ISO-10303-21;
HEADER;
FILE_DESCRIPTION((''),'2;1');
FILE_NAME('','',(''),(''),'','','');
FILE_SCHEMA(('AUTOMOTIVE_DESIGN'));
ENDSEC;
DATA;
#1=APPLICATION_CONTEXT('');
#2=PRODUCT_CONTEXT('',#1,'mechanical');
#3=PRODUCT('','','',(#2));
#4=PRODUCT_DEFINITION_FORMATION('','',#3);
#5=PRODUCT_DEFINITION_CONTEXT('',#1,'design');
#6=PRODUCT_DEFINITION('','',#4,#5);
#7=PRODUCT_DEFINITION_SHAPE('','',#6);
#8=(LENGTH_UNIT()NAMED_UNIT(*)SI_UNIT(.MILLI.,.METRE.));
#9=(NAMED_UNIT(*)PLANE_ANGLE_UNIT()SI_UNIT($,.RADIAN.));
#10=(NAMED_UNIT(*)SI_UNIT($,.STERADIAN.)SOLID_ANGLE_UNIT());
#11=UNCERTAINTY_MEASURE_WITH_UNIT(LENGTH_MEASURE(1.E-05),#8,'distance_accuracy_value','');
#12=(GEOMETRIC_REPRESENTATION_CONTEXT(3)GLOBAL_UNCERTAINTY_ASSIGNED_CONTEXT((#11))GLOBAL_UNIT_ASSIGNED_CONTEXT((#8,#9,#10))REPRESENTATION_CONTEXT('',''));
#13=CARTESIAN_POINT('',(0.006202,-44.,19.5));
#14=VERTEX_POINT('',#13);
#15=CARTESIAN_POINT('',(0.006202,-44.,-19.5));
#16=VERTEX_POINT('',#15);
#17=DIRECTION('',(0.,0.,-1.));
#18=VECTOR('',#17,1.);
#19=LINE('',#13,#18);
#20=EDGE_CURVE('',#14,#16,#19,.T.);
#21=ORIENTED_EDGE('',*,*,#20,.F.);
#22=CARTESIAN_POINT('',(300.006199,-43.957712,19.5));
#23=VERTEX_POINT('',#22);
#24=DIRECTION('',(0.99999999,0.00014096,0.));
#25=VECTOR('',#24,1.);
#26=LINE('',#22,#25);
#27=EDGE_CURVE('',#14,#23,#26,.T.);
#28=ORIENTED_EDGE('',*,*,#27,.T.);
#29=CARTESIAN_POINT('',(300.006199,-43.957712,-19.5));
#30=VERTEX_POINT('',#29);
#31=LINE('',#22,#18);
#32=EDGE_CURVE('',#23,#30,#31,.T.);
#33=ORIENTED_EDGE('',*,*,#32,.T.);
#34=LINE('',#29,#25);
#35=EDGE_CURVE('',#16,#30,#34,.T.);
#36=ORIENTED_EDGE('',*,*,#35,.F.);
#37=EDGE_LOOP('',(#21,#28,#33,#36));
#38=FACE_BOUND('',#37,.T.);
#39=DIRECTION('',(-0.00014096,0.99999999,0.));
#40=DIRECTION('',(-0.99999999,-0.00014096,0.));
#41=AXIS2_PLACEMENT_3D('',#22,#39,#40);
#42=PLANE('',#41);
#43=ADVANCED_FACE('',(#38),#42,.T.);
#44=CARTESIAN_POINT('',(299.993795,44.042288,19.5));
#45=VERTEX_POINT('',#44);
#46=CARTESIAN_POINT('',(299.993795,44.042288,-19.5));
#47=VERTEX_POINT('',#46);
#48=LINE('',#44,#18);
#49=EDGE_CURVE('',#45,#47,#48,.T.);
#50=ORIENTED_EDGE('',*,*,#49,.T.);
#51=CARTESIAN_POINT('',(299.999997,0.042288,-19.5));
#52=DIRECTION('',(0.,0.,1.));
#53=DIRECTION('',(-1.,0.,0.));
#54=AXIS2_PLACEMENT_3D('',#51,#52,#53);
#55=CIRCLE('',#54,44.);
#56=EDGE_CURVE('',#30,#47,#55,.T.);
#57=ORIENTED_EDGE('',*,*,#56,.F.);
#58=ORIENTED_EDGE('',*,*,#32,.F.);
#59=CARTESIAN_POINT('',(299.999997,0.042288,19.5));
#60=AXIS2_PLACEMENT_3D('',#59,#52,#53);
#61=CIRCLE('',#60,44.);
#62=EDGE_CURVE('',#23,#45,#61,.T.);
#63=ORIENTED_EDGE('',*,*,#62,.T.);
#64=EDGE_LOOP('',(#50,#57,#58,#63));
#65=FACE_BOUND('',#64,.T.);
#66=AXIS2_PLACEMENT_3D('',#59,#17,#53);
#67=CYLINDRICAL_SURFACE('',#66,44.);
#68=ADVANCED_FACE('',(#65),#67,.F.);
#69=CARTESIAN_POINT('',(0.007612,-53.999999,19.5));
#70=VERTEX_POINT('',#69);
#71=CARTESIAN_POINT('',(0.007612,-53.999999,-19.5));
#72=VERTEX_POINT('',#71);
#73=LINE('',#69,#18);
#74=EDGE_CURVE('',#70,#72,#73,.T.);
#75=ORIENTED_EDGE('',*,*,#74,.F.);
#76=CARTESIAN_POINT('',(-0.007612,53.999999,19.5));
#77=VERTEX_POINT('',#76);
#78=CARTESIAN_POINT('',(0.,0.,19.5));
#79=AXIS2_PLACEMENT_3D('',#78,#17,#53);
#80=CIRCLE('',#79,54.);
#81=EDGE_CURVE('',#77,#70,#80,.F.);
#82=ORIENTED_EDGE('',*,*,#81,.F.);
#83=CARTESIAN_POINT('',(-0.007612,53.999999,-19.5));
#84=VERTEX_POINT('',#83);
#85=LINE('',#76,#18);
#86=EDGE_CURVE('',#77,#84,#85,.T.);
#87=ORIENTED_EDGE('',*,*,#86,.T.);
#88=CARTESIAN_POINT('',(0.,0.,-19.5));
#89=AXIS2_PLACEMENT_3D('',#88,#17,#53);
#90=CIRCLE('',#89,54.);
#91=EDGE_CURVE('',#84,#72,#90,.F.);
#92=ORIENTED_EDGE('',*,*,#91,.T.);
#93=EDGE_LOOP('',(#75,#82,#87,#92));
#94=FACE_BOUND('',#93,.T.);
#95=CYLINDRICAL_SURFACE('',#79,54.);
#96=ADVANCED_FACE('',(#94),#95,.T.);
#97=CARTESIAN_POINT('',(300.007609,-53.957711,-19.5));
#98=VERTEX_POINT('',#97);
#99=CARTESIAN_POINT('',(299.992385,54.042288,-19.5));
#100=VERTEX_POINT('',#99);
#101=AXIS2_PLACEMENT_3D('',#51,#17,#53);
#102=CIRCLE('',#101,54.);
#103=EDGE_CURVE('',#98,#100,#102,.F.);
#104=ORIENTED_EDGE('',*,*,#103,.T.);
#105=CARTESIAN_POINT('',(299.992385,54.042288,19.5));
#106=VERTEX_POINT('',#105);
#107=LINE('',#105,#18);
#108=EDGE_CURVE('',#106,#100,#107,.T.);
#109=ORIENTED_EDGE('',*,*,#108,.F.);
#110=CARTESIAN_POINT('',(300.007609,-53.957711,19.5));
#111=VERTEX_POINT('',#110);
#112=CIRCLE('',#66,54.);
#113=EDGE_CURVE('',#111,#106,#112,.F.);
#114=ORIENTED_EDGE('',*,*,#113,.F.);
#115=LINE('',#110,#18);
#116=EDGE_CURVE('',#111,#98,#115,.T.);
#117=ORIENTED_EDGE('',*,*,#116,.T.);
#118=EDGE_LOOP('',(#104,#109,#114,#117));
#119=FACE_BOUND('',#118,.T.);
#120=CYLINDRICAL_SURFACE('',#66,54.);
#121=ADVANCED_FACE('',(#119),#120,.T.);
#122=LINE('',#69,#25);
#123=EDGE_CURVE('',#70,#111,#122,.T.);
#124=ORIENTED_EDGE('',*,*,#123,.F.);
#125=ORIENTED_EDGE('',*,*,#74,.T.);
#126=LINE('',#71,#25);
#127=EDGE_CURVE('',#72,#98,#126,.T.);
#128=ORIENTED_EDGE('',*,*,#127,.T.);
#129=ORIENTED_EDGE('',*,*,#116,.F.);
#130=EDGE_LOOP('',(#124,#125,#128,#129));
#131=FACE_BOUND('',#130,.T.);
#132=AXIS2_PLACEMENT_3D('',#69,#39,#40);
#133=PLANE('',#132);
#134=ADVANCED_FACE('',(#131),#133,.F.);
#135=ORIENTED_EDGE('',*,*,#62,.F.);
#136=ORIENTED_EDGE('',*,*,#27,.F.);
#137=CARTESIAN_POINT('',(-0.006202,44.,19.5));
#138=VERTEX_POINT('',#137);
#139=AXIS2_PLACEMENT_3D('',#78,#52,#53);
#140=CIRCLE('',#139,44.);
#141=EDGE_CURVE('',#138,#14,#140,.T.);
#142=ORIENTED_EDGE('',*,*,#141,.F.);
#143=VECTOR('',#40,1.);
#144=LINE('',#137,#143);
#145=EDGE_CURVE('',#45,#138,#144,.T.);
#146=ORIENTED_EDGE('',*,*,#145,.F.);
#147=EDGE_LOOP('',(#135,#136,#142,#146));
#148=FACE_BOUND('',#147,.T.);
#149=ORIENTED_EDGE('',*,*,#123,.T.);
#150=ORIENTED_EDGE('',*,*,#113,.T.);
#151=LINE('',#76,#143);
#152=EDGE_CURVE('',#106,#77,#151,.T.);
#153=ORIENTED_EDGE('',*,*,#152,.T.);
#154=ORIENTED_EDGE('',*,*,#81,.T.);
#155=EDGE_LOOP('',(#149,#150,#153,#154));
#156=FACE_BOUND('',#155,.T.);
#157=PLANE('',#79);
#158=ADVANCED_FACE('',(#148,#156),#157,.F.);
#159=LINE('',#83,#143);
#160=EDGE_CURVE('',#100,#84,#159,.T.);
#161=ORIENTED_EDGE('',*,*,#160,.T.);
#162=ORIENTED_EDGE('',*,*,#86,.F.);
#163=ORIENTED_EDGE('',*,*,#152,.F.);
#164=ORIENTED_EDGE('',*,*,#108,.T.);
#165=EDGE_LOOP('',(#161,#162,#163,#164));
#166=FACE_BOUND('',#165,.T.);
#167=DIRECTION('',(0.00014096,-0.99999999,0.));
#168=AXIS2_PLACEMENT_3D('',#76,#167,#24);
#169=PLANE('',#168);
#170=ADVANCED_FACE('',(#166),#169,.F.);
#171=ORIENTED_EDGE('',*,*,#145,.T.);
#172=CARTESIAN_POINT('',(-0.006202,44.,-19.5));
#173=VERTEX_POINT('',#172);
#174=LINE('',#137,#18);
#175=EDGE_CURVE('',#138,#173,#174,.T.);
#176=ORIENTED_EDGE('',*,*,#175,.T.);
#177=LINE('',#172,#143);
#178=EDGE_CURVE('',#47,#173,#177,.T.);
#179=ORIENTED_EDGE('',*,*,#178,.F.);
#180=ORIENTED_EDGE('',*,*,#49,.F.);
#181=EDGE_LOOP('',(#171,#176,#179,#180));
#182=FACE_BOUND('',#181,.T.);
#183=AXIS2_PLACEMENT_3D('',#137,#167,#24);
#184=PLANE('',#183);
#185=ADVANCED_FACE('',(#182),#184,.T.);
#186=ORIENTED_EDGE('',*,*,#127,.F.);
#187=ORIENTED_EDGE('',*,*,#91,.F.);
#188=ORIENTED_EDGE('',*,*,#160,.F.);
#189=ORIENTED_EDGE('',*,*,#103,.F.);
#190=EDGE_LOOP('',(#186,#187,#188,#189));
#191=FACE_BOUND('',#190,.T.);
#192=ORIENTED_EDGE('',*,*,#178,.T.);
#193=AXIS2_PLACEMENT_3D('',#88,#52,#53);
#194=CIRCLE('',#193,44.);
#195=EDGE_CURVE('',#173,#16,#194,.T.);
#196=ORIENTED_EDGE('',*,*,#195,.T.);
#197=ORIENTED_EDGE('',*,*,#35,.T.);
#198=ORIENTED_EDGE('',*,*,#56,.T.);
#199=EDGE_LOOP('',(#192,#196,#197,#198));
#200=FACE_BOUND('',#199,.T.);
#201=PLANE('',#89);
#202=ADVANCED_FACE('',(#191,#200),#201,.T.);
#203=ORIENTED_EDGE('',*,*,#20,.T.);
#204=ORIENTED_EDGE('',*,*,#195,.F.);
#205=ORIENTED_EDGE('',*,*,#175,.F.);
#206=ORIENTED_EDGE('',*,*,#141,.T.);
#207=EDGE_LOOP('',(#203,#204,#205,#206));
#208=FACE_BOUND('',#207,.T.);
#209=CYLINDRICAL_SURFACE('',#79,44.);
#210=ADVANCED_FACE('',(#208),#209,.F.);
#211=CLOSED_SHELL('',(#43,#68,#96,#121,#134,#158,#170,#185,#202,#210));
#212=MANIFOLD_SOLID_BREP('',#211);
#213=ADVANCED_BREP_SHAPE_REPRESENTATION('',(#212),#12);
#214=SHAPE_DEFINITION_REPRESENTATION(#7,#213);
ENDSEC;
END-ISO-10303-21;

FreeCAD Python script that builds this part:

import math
import FreeCAD as App
import Part
import Sketcher
from FreeCAD import Vector

doc = App.newDocument("Part")
params = doc.addObject("Spreadsheet::Sheet", "Params")
for row, (alias, value) in enumerate([
    ("sketch1_radius", "54 mm"),
    ("sketch1_radius2", "44 mm"),
    ("sketch1_length", "300 mm"),
    ("pad1_length", "39 mm"),
], start=1):
    params.set(f"A{row}", alias)
    params.set(f"B{row}", "=" + value)
    params.setAlias(f"B{row}", alias)

body = doc.addObject("PartDesign::Body", "Body")

sketch1 = doc.addObject("Sketcher::SketchObject", "Sketch")
body.addObject(sketch1)
sketch1.AttachmentSupport = (doc.XY_Plane, [""])
sketch1.MapMode = "FlatFace"
sketch1.addGeometry([
    Part.LineSegment(Vector(0, -54, 0), Vector(300, -54, 0)),
    Part.ArcOfCircle(Part.Circle(Vector(300, 0, 0), Vector(0, 0, 1), 54), math.radians(-90), math.radians(90)),
    Part.LineSegment(Vector(300, 54, 0), Vector(0, 54, 0)),
    Part.ArcOfCircle(Part.Circle(Vector(0, 0, 0), Vector(0, 0, 1), 54), math.radians(90), math.radians(270)),
    Part.LineSegment(Vector(300, -44, 0), Vector(0, -44, 0)),
    Part.ArcOfCircle(Part.Circle(Vector(0, 0, 0), Vector(0, 0, 1), 44), math.radians(90), math.radians(270)),
    Part.LineSegment(Vector(0, 44, 0), Vector(300, 44, 0)),
    Part.ArcOfCircle(Part.Circle(Vector(300, 0, 0), Vector(0, 0, 1), 44), math.radians(-90), math.radians(90)),
], False)
sketch1.addConstraint([
    Sketcher.Constraint("Tangent", 0, 2, 1, 1),
    Sketcher.Constraint("Tangent", 1, 2, 2, 1),
    Sketcher.Constraint("Tangent", 2, 2, 3, 1),
    Sketcher.Constraint("Tangent", 3, 2, 0, 1),
    Sketcher.Constraint("Tangent", 4, 2, 5, 2),
    Sketcher.Constraint("Tangent", 5, 1, 6, 1),
    Sketcher.Constraint("Tangent", 6, 2, 7, 2),
    Sketcher.Constraint("Tangent", 7, 1, 4, 1),
    Sketcher.Constraint("Coincident", 3, 3, -1, 1),
    Sketcher.Constraint("Coincident", 5, 3, -1, 1),
    Sketcher.Constraint("Coincident", 7, 3, 1, 3),
    Sketcher.Constraint("Equal", 1, 3),
    Sketcher.Constraint("Equal", 5, 7),
    Sketcher.Constraint("Radius", 1, 54.0),
    Sketcher.Constraint("Radius", 5, 44.0),
    Sketcher.Constraint("Distance", 0, 300.0),
    Sketcher.Constraint("DistanceY", -1, 1, 1, 3, 0.042288),
])
sketch1.setExpression("Constraints[13]", "Params.sketch1_radius")
sketch1.setExpression("Constraints[14]", "Params.sketch1_radius2")
sketch1.setExpression("Constraints[15]", "Params.sketch1_length")
pad1 = doc.addObject("PartDesign::Pad", "Pad")
body.addObject(pad1)
pad1.Profile = sketch1
pad1.setExpression("Length", "Params.pad1_length")
pad1.Midplane = True

doc.recompute()
